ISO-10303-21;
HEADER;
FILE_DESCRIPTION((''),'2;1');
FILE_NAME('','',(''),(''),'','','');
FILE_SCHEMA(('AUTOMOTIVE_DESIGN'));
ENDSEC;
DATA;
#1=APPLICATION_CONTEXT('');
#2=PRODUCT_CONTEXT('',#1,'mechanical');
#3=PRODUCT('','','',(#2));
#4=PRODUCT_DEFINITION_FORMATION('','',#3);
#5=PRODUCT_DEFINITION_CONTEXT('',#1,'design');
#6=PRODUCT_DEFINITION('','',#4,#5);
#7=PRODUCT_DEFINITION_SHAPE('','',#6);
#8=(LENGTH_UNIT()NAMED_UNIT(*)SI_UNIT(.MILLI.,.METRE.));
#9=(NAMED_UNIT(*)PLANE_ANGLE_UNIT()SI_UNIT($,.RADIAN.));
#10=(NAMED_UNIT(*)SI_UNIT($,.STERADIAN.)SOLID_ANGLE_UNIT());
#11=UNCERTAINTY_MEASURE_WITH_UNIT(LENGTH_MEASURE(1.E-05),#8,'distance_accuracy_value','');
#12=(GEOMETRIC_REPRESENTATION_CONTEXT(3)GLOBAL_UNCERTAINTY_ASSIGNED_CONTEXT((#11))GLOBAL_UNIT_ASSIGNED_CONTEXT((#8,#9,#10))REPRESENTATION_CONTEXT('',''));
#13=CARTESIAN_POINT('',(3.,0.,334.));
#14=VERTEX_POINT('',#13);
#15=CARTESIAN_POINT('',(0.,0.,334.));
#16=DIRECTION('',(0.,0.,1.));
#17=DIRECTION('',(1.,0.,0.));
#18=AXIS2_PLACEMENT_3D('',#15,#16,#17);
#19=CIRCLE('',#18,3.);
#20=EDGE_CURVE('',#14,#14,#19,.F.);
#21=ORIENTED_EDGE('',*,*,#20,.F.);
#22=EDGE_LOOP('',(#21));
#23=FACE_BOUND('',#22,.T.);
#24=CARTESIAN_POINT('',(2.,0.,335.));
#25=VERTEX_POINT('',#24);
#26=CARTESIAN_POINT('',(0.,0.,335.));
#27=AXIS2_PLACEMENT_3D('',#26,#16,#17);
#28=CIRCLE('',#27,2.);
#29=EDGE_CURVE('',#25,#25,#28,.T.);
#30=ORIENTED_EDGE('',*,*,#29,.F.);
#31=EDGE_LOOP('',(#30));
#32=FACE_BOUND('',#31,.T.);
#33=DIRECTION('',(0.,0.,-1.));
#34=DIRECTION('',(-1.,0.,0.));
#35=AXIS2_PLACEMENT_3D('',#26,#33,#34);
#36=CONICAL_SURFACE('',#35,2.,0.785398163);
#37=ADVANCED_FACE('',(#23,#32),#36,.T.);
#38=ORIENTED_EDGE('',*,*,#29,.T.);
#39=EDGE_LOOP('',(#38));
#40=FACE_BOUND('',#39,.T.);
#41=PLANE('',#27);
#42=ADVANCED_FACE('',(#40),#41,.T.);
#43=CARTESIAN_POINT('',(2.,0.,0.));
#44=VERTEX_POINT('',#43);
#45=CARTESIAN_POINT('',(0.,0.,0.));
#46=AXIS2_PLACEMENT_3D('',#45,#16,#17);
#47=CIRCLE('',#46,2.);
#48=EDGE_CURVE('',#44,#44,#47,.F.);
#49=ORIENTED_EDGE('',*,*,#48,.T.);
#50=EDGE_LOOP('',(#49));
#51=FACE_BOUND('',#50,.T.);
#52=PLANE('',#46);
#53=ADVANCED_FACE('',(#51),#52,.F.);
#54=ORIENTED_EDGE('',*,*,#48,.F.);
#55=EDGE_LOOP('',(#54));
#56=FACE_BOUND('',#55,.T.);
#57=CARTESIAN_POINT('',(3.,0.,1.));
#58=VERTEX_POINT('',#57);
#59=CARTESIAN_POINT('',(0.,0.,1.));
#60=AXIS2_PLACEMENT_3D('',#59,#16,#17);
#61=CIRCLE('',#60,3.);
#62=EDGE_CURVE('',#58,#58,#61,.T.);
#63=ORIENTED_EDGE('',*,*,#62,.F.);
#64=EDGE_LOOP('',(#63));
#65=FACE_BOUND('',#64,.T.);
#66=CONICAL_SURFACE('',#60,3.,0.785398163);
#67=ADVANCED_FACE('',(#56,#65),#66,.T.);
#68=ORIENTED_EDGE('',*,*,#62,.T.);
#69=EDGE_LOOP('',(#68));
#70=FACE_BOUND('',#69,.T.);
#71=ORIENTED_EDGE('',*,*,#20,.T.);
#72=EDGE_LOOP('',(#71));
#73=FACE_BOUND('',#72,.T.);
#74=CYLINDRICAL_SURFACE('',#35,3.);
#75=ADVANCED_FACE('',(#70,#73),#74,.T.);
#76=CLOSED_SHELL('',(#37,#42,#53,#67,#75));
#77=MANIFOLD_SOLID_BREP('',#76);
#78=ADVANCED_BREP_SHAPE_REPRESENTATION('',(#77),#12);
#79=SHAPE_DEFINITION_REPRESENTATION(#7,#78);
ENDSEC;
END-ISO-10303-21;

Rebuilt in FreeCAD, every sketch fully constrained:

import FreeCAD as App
import Part
import Sketcher
from FreeCAD import Vector
Q = App.Units.Quantity


def edges_at(feature, points):
    """Names of the edges that pass closest to the given points."""
    edges = feature.Shape.Edges
    near = lambda p: min(range(len(edges)), key=lambda i: edges[i].distToShape(Part.Vertex(*p))[0])
    return sorted({f"Edge{near(p) + 1}" for p in points})

doc = App.newDocument("Part")
body = doc.addObject("PartDesign::Body", "Body")

sketch1 = body.newObject("Sketcher::SketchObject", "Sketch")
sketch1.AttachmentSupport = (doc.getObject("XY_Plane"), [""])
sketch1.MapMode = "FlatFace"
sketch1.addGeometry(Part.Circle(Vector(0, 0, 0), Vector(0, 0, 1), 3), False)
sketch1.addConstraint([
    Sketcher.Constraint("Coincident", 0, 3, -1, 1),
    Sketcher.Constraint("Diameter", 0, Q("6 mm")),
])
pad1 = body.newObject("PartDesign::Pad", "Pad")
pad1.Profile = sketch1
pad1.Length = 335
doc.recompute()

chamfer = body.newObject("PartDesign::Chamfer", "Chamfer")
chamfer.Base = (pad1, edges_at(pad1, [(-3, 0, 0), (-3, 0, 335)]))
chamfer.Size = 1

doc.recompute()
